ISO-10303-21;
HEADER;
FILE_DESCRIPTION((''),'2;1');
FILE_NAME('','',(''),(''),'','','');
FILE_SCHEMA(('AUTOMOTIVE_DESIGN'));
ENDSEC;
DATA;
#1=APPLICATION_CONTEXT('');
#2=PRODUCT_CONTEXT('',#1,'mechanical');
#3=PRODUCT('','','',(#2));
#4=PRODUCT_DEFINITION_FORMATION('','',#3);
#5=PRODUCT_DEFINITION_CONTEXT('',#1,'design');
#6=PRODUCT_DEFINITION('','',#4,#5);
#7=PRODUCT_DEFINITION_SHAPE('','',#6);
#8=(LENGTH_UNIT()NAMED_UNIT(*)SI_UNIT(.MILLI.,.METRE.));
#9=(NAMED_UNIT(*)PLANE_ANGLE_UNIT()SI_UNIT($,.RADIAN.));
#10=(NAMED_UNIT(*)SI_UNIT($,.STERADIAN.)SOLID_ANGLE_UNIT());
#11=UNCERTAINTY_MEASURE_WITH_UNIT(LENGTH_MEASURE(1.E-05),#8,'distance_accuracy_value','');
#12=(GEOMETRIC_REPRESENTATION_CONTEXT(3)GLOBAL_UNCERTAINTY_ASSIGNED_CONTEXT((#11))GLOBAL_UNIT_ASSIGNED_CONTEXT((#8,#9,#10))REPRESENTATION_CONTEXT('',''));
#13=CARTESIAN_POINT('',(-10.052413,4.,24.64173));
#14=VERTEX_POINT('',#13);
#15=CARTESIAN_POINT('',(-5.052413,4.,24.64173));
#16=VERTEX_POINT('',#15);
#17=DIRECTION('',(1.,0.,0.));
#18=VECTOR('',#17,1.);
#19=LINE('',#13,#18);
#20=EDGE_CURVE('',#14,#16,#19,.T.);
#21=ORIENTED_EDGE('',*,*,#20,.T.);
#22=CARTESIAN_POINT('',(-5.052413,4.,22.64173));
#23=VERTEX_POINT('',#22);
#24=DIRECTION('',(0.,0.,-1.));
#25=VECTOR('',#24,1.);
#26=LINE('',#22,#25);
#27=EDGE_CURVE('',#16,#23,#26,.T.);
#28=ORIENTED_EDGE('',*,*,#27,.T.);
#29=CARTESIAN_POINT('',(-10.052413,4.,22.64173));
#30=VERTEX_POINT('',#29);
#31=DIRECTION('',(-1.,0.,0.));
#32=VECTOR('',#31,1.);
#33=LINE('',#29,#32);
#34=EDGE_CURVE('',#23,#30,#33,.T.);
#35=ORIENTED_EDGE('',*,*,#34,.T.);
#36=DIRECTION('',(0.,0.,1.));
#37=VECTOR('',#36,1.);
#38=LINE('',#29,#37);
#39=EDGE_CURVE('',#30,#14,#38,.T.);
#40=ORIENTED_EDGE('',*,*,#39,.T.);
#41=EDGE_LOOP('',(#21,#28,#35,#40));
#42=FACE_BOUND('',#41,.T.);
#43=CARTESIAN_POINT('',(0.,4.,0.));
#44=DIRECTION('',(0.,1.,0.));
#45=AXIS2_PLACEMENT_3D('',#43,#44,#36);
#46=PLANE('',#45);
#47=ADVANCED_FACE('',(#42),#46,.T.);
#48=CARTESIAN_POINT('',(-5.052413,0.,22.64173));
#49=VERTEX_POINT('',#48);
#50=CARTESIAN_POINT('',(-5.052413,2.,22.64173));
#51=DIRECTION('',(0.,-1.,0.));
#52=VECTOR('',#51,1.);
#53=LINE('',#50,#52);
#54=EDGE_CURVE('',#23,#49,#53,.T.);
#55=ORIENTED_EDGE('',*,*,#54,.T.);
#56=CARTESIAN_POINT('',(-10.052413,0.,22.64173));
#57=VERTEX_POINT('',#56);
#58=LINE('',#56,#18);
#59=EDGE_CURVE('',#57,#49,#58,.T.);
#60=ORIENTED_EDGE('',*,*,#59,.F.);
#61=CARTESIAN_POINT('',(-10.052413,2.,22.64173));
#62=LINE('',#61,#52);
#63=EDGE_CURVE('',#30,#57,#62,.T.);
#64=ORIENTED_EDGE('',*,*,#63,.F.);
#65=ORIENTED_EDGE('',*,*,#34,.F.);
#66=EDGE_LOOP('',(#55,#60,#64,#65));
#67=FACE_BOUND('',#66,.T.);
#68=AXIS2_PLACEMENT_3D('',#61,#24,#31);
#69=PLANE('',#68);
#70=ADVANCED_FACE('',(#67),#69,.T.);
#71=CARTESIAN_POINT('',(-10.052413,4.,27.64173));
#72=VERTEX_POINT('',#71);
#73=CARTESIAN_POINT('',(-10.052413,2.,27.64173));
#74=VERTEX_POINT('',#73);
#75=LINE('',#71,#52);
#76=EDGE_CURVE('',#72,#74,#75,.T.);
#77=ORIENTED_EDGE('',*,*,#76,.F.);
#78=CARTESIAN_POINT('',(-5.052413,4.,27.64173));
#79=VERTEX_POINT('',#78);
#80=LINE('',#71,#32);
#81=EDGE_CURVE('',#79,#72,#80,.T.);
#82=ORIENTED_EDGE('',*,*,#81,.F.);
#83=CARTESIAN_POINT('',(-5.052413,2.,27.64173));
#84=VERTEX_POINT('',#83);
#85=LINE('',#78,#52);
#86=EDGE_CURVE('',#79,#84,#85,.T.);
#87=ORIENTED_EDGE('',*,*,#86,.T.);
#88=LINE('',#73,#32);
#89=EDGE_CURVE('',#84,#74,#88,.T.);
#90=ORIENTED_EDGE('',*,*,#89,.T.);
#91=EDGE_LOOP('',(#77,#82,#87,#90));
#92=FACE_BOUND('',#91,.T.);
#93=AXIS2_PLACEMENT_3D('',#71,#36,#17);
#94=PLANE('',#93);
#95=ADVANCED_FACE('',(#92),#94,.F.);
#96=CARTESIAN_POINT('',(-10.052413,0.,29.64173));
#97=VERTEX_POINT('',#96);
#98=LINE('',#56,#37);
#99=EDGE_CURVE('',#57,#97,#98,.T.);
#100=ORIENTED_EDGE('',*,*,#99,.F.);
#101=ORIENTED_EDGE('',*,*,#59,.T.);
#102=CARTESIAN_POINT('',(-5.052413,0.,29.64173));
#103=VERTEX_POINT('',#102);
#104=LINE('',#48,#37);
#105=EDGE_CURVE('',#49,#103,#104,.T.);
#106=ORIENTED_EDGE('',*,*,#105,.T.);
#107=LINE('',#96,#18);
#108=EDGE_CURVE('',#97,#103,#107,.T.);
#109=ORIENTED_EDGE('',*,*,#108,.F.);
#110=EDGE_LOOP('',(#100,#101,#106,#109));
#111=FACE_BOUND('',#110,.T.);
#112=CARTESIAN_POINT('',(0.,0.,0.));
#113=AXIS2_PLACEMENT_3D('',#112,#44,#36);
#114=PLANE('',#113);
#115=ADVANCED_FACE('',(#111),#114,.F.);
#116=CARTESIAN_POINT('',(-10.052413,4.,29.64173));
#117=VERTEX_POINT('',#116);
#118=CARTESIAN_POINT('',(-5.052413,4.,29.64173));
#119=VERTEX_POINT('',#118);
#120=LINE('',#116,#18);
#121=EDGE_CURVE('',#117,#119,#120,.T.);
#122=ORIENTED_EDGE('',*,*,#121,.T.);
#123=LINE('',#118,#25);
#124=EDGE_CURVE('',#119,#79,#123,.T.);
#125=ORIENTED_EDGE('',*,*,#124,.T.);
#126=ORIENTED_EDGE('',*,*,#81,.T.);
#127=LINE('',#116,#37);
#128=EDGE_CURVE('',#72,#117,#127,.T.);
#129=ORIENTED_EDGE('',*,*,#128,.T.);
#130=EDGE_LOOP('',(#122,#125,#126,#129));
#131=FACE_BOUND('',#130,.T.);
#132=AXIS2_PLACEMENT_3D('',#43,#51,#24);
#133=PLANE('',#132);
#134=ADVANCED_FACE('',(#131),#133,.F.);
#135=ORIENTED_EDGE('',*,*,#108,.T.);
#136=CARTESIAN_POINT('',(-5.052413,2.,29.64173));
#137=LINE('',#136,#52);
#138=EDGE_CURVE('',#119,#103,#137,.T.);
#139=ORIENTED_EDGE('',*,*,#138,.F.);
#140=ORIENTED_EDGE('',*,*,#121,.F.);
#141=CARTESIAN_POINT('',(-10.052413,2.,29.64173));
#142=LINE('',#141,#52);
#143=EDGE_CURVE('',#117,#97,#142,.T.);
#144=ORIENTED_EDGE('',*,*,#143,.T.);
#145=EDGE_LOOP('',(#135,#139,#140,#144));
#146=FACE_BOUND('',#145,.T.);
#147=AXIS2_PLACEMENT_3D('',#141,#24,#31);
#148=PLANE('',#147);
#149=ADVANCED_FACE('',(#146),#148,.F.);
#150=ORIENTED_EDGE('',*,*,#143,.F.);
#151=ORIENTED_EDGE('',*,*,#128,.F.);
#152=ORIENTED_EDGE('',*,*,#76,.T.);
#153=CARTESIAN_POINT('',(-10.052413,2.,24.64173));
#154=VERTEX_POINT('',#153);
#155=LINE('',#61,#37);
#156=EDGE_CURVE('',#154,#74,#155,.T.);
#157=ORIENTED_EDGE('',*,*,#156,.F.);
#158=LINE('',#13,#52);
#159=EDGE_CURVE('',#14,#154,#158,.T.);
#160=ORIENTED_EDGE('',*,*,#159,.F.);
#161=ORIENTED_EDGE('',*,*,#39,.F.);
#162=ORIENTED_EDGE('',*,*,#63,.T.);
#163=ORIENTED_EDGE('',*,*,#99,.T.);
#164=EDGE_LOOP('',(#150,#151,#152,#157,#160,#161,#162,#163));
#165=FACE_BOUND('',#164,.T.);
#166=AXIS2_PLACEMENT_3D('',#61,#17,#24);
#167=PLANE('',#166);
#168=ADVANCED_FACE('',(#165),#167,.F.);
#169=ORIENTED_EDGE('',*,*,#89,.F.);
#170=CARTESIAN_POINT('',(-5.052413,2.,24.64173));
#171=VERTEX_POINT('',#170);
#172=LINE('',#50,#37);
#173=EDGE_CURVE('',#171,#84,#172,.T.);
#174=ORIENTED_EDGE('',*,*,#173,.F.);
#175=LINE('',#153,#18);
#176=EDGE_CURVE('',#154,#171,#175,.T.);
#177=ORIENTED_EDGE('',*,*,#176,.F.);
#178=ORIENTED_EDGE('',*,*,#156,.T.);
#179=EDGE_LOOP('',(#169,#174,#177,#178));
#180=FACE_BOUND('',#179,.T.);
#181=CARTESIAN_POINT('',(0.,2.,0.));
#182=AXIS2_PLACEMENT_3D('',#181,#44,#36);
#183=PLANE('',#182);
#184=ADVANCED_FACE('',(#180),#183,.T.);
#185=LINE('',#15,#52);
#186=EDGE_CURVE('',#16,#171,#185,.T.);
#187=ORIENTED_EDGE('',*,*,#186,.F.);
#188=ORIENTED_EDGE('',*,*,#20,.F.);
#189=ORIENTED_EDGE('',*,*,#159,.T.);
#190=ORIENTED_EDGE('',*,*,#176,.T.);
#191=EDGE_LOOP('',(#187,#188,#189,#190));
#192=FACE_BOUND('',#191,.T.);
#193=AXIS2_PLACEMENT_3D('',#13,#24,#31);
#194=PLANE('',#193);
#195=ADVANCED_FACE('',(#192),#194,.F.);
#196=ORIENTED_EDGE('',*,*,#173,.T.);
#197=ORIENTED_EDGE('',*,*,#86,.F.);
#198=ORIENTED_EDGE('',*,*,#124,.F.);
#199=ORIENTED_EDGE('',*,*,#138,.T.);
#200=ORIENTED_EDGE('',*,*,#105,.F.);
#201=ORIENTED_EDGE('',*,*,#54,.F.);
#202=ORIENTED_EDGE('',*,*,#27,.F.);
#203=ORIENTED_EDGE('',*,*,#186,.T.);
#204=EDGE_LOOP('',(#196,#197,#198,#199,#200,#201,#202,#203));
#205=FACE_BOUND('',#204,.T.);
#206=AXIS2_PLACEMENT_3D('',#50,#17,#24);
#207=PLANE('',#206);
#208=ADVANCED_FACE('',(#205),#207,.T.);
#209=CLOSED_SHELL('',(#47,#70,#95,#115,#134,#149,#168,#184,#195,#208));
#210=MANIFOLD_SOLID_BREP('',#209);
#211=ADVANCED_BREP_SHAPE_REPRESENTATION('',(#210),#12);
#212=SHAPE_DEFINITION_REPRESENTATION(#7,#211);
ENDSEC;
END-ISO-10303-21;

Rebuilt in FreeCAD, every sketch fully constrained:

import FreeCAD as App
import Part
import Sketcher

V = App.Vector


def add_polygon(sketch, points):
    """Adds a closed chain of lines whose ends are joined by coincident constraints."""
    first, n = sketch.GeometryCount, len(points)
    for a, b in zip(points, points[1:] + points[:1]):
        sketch.addGeometry(Part.LineSegment(App.Vector(*a, 0), App.Vector(*b, 0)), False)
    for i in range(n):
        sketch.addConstraint(Sketcher.Constraint("Coincident", first + i, 2, first + (i + 1) % n, 1))

doc = App.newDocument("Part")
params = doc.addObject("Spreadsheet::Sheet", "Params")
for row, (alias, value) in enumerate([
    ("sketch1_width", "5 mm"),
    ("sketch1_height", "7 mm"),
    ("pad1_length", "2 mm"),
    ("sketch2_width", "5 mm"),
    ("sketch2_height", "2 mm"),
    ("pad2_length", "2 mm"),
], start=1):
    params.set(f"A{row}", alias)
    params.set(f"B{row}", "=" + value)
    params.setAlias(f"B{row}", alias)

body = doc.addObject("PartDesign::Body", "Body")

# Sketch on XZ plane
sketch1 = doc.addObject("Sketcher::SketchObject", "Sketch")
body.addObject(sketch1)
sketch1.AttachmentSupport = (doc.XZ_Plane, [""])
sketch1.MapMode = "FlatFace"
add_polygon(sketch1, [(-10, 23), (-10, 30), (-5, 30), (-5, 23)])  # lines 0-3
sketch1.addConstraint([
    Sketcher.Constraint("Vertical", 0),
    Sketcher.Constraint("Horizontal", 1),
    Sketcher.Constraint("Vertical", 2),
    Sketcher.Constraint("Horizontal", 3),
    Sketcher.Constraint("DistanceX", 1, 1, 1, 2, 5.0),
    Sketcher.Constraint("DistanceY", 0, 1, 0, 2, 7.0),
    Sketcher.Constraint("DistanceY", -1, 1, 0, 2, 29.64173),
    Sketcher.Constraint("DistanceX", 0, 2, -1, 1, 10.052413),
])
sketch1.setExpression("Constraints[8]", "Params.sketch1_width")
sketch1.setExpression("Constraints[9]", "Params.sketch1_height")
pad1 = doc.addObject("PartDesign::Pad", "Pad")
body.addObject(pad1)
pad1.Profile = sketch1
pad1.setExpression("Length", "Params.pad1_length")
pad1.Reversed = True

# Sketch on XZ plane
sketch2 = doc.addObject("Sketcher::SketchObject", "Sketch001")
body.addObject(sketch2)
sketch2.AttachmentSupport = (doc.XZ_Plane, [""])
sketch2.MapMode = "FlatFace"
sketch2.AttachmentOffset = App.Placement(V(0, 0, -2), App.Rotation())
add_polygon(sketch2, [(-10.1, 22.6), (-10.1, 24.6), (-5.1, 24.6), (-5.1, 22.6)])  # lines 0-3
add_polygon(sketch2, [(-10.1, 27.6), (-10.1, 29.6), (-5.1, 29.6), (-5.1, 27.6)])  # lines 4-7
sketch2.addConstraint([
    Sketcher.Constraint("Vertical", 0),
    Sketcher.Constraint("Horizontal", 1),
    Sketcher.Constraint("Vertical", 2),
    Sketcher.Constraint("Horizontal", 3),
    Sketcher.Constraint("Vertical", 4),
    Sketcher.Constraint("Horizontal", 5),
    Sketcher.Constraint("Vertical", 6),
    Sketcher.Constraint("Horizontal", 7),
    Sketcher.Constraint("Vertical", 3, 2, 4, 2),
    Sketcher.Constraint("Vertical", 2, 2, 5, 2),
    Sketcher.Constraint("Equal", 2, 4),
    Sketcher.Constraint("DistanceX", 1, 1, 1, 2, 5.0),
    Sketcher.Constraint("DistanceY", 0, 1, 0, 2, 2.0),
    Sketcher.Constraint("DistanceY", 0, 2, 4, 2, 5.0),
    Sketcher.Constraint("DistanceY", -1, 1, 0, 2, 24.64173),
    Sketcher.Constraint("DistanceX", 0, 2, -1, 1, 10.052413),
])
sketch2.setExpression("Constraints[19]", "Params.sketch2_width")
sketch2.setExpression("Constraints[20]", "Params.sketch2_height")
pad2 = doc.addObject("PartDesign::Pad", "Pad001")
body.addObject(pad2)
pad2.Profile = sketch2
pad2.setExpression("Length", "Params.pad2_length")
pad2.Reversed = True

doc.recompute()
